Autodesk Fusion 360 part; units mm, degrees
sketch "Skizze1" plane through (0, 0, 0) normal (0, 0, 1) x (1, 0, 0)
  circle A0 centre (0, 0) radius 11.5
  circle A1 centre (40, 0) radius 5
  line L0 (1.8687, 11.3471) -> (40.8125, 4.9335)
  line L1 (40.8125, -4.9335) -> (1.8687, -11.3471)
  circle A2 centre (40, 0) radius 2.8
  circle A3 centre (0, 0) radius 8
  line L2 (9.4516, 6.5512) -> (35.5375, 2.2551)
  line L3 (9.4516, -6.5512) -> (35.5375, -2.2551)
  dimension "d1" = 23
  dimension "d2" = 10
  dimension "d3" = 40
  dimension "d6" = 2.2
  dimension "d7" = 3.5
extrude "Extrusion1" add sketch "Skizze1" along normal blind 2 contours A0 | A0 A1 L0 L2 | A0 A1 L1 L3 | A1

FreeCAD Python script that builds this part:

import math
import FreeCAD as App
import Part
import Sketcher
from FreeCAD import Vector
Q = App.Units.Quantity

doc = App.newDocument("Part")
body = doc.addObject("PartDesign::Body", "Body")

# Sketch on XY plane
sketch1 = doc.addObject("Sketcher::SketchObject", "Sketch")
body.addObject(sketch1)
sketch1.AttachmentSupport = (doc.XY_Plane, [""])
sketch1.MapMode = "FlatFace"
sketch1.addGeometry(Part.ArcOfCircle(Part.Circle(Vector(0, 0, 0), Vector(0, 0, 1), 11.5), math.radians(81), math.radians(279)), False)
sketch1.addGeometry(Part.LineSegment(Vector(1.9, -11.3, 0), Vector(40.8, -4.9, 0)), False)
sketch1.addGeometry(Part.ArcOfCircle(Part.Circle(Vector(40, 0, 0), Vector(0, 0, 1), 5), math.radians(-81), math.radians(81)), False)
sketch1.addGeometry(Part.LineSegment(Vector(40.8, 4.9, 0), Vector(1.9, 11.3, 0)), False)
sketch1.addGeometry(Part.ArcOfCircle(Part.Circle(Vector(0, 0, 0), Vector(0, 0, 1), 11.5), math.radians(-35), math.radians(35)), False)
sketch1.addGeometry(Part.LineSegment(Vector(9.5, 6.6, 0), Vector(35.5, 2.3, 0)), False)
sketch1.addGeometry(Part.ArcOfCircle(Part.Circle(Vector(40, 0, 0), Vector(0, 0, 1), 5), math.radians(153), math.radians(207)), False)
sketch1.addGeometry(Part.LineSegment(Vector(35.5, -2.3, 0), Vector(9.5, -6.6, 0)), False)
sketch1.addGeometry(Part.Circle(Vector(0, 0, 0), Vector(0, 0, 1), 8), False)
sketch1.addGeometry(Part.Circle(Vector(40, 0, 0), Vector(0, 0, 1), 2.8), False)
sketch1.addConstraint(Sketcher.Constraint("Tangent", 0, 2, 1, 1))
sketch1.addConstraint(Sketcher.Constraint("Tangent", 1, 2, 2, 1))
sketch1.addConstraint(Sketcher.Constraint("Tangent", 2, 2, 3, 1))
sketch1.addConstraint(Sketcher.Constraint("Tangent", 3, 2, 0, 1))
sketch1.addConstraint(Sketcher.Constraint("Coincident", 4, 2, 5, 1))
sketch1.addConstraint(Sketcher.Constraint("Coincident", 5, 2, 6, 1))
sketch1.addConstraint(Sketcher.Constraint("Coincident", 6, 2, 7, 1))
sketch1.addConstraint(Sketcher.Constraint("Coincident", 7, 2, 4, 1))
sketch1.addConstraint(Sketcher.Constraint("Coincident", 0, 3, -1, 1))
sketch1.addConstraint(Sketcher.Constraint("Coincident", 4, 3, -1, 1))
sketch1.addConstraint(Sketcher.Constraint("Coincident", 8, 3, -1, 1))
sketch1.addConstraint(Sketcher.Constraint("Coincident", 6, 3, 2, 3))
sketch1.addConstraint(Sketcher.Constraint("Coincident", 9, 3, 2, 3))
sketch1.addConstraint(Sketcher.Constraint("Equal", 0, 4))
sketch1.addConstraint(Sketcher.Constraint("Equal", 2, 6))
sketch1.addConstraint(Sketcher.Constraint("Symmetric", 5, 2, 6, 2, -1))
sketch1.addConstraint(Sketcher.Constraint("Parallel", 3, 5))
sketch1.addConstraint(Sketcher.Constraint("Parallel", 1, 7))
sketch1.addConstraint(Sketcher.Constraint("Radius", 2, Q("5 mm")))
sketch1.addConstraint(Sketcher.Constraint("Radius", 0, Q("11.5 mm")))
sketch1.addConstraint(Sketcher.Constraint("Diameter", 8, Q("16 mm")))
sketch1.addConstraint(Sketcher.Constraint("DistanceX", -1, 1, 2, 3, Q("40 mm")))
sketch1.addConstraint(Sketcher.Constraint("Diameter", 9, Q("5.6 mm")))
sketch1.addConstraint(Sketcher.Constraint("DistanceY", -1, 1, 5, 2, Q("2.255 mm")))
pad1 = doc.addObject("PartDesign::Pad", "Pad")
body.addObject(pad1)
pad1.Profile = sketch1
pad1.Length = 2

doc.recompute()
